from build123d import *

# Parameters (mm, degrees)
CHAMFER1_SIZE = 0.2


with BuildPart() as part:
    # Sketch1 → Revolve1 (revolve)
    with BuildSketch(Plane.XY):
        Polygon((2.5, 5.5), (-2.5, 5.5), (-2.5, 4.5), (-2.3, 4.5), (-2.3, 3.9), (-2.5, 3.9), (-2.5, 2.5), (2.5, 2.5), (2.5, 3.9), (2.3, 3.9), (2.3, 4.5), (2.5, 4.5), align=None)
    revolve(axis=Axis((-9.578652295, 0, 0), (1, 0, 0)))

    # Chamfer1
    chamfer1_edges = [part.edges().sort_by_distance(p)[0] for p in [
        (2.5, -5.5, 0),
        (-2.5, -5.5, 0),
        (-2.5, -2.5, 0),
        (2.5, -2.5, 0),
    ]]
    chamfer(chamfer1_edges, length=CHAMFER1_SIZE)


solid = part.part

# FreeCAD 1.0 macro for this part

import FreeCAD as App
import Part
import Sketcher
from FreeCAD import Vector


def edges_at(feature, points):
    """Names of the edges that pass closest to the given points."""
    edges = feature.Shape.Edges
    near = lambda p: min(range(len(edges)), key=lambda i: edges[i].distToShape(Part.Vertex(*p))[0])
    return sorted({f"Edge{near(p) + 1}" for p in points})


def add_polygon(sketch, points):
    """Adds a closed chain of lines whose ends are joined by coincident constraints."""
    first, n = sketch.GeometryCount, len(points)
    for a, b in zip(points, points[1:] + points[:1]):
        sketch.addGeometry(Part.LineSegment(App.Vector(*a, 0), App.Vector(*b, 0)), False)
    for i in range(n):
        sketch.addConstraint(Sketcher.Constraint("Coincident", first + i, 2, first + (i + 1) % n, 1))

doc = App.newDocument("Part")
body = doc.addObject("PartDesign::Body", "Body")

sketch1 = doc.addObject("Sketcher::SketchObject", "Sketch")
body.addObject(sketch1)
sketch1.AttachmentSupport = (doc.XY_Plane, [""])
sketch1.MapMode = "FlatFace"
add_polygon(sketch1, [(2.5, 5.5), (-2.5, 5.5), (-2.5, 4.5), (-2.3, 4.5), (-2.3, 3.9), (-2.5, 3.9), (-2.5, 2.5), (2.5, 2.5), (2.5, 3.9), (2.3, 3.9), (2.3, 4.5), (2.5, 4.5)])
sketch1.addConstraint([
    Sketcher.Constraint("Horizontal", 0),
    Sketcher.Constraint("Vertical", 1),
    Sketcher.Constraint("Horizontal", 2),
    Sketcher.Constraint("Vertical", 3),
    Sketcher.Constraint("Horizontal", 4),
    Sketcher.Constraint("Vertical", 5),
    Sketcher.Constraint("Horizontal", 6),
    Sketcher.Constraint("Vertical", 7),
    Sketcher.Constraint("Horizontal", 8),
    Sketcher.Constraint("Vertical", 9),
    Sketcher.Constraint("Horizontal", 10),
    Sketcher.Constraint("Vertical", 11),
    Sketcher.Constraint("Symmetric", 4, 2, 7, 2, -2),
    Sketcher.Constraint("Symmetric", 2, 2, 9, 2, -2),
    Sketcher.Constraint("Vertical", 1, 2, 4, 2),
    Sketcher.Constraint("Vertical", 7, 2, 10, 2),
    Sketcher.Constraint("DistanceX", 0, 2, 0, 1, 5.0),
    Sketcher.Constraint("DistanceY", 1, 2, 1, 1, 1.0),
    Sketcher.Constraint("DistanceX", 2, 1, 2, 2, 0.2),
    Sketcher.Constraint("DistanceY", 3, 2, 3, 1, 0.6),
    Sketcher.Constraint("DistanceY", 5, 2, 5, 1, 1.4),
    Sketcher.Constraint("DistanceY", -1, 1, 0, 2, 5.5),
])
revolution = doc.addObject("PartDesign::Revolution", "Revolution")
body.addObject(revolution)
revolution.Profile = sketch1
revolution.ReferenceAxis = (sketch1, ["H_Axis"])
revolution.Angle = 360
doc.recompute()

chamfer = doc.addObject("PartDesign::Chamfer", "Chamfer")
body.addObject(chamfer)
chamfer.Base = (revolution, edges_at(revolution, [
    (2.5, -5.5, 0),
    (-2.5, -5.5, 0),
    (-2.5, -2.5, 0),
    (2.5, -2.5, 0),
]))
chamfer.Size = 0.2

doc.recompute()
